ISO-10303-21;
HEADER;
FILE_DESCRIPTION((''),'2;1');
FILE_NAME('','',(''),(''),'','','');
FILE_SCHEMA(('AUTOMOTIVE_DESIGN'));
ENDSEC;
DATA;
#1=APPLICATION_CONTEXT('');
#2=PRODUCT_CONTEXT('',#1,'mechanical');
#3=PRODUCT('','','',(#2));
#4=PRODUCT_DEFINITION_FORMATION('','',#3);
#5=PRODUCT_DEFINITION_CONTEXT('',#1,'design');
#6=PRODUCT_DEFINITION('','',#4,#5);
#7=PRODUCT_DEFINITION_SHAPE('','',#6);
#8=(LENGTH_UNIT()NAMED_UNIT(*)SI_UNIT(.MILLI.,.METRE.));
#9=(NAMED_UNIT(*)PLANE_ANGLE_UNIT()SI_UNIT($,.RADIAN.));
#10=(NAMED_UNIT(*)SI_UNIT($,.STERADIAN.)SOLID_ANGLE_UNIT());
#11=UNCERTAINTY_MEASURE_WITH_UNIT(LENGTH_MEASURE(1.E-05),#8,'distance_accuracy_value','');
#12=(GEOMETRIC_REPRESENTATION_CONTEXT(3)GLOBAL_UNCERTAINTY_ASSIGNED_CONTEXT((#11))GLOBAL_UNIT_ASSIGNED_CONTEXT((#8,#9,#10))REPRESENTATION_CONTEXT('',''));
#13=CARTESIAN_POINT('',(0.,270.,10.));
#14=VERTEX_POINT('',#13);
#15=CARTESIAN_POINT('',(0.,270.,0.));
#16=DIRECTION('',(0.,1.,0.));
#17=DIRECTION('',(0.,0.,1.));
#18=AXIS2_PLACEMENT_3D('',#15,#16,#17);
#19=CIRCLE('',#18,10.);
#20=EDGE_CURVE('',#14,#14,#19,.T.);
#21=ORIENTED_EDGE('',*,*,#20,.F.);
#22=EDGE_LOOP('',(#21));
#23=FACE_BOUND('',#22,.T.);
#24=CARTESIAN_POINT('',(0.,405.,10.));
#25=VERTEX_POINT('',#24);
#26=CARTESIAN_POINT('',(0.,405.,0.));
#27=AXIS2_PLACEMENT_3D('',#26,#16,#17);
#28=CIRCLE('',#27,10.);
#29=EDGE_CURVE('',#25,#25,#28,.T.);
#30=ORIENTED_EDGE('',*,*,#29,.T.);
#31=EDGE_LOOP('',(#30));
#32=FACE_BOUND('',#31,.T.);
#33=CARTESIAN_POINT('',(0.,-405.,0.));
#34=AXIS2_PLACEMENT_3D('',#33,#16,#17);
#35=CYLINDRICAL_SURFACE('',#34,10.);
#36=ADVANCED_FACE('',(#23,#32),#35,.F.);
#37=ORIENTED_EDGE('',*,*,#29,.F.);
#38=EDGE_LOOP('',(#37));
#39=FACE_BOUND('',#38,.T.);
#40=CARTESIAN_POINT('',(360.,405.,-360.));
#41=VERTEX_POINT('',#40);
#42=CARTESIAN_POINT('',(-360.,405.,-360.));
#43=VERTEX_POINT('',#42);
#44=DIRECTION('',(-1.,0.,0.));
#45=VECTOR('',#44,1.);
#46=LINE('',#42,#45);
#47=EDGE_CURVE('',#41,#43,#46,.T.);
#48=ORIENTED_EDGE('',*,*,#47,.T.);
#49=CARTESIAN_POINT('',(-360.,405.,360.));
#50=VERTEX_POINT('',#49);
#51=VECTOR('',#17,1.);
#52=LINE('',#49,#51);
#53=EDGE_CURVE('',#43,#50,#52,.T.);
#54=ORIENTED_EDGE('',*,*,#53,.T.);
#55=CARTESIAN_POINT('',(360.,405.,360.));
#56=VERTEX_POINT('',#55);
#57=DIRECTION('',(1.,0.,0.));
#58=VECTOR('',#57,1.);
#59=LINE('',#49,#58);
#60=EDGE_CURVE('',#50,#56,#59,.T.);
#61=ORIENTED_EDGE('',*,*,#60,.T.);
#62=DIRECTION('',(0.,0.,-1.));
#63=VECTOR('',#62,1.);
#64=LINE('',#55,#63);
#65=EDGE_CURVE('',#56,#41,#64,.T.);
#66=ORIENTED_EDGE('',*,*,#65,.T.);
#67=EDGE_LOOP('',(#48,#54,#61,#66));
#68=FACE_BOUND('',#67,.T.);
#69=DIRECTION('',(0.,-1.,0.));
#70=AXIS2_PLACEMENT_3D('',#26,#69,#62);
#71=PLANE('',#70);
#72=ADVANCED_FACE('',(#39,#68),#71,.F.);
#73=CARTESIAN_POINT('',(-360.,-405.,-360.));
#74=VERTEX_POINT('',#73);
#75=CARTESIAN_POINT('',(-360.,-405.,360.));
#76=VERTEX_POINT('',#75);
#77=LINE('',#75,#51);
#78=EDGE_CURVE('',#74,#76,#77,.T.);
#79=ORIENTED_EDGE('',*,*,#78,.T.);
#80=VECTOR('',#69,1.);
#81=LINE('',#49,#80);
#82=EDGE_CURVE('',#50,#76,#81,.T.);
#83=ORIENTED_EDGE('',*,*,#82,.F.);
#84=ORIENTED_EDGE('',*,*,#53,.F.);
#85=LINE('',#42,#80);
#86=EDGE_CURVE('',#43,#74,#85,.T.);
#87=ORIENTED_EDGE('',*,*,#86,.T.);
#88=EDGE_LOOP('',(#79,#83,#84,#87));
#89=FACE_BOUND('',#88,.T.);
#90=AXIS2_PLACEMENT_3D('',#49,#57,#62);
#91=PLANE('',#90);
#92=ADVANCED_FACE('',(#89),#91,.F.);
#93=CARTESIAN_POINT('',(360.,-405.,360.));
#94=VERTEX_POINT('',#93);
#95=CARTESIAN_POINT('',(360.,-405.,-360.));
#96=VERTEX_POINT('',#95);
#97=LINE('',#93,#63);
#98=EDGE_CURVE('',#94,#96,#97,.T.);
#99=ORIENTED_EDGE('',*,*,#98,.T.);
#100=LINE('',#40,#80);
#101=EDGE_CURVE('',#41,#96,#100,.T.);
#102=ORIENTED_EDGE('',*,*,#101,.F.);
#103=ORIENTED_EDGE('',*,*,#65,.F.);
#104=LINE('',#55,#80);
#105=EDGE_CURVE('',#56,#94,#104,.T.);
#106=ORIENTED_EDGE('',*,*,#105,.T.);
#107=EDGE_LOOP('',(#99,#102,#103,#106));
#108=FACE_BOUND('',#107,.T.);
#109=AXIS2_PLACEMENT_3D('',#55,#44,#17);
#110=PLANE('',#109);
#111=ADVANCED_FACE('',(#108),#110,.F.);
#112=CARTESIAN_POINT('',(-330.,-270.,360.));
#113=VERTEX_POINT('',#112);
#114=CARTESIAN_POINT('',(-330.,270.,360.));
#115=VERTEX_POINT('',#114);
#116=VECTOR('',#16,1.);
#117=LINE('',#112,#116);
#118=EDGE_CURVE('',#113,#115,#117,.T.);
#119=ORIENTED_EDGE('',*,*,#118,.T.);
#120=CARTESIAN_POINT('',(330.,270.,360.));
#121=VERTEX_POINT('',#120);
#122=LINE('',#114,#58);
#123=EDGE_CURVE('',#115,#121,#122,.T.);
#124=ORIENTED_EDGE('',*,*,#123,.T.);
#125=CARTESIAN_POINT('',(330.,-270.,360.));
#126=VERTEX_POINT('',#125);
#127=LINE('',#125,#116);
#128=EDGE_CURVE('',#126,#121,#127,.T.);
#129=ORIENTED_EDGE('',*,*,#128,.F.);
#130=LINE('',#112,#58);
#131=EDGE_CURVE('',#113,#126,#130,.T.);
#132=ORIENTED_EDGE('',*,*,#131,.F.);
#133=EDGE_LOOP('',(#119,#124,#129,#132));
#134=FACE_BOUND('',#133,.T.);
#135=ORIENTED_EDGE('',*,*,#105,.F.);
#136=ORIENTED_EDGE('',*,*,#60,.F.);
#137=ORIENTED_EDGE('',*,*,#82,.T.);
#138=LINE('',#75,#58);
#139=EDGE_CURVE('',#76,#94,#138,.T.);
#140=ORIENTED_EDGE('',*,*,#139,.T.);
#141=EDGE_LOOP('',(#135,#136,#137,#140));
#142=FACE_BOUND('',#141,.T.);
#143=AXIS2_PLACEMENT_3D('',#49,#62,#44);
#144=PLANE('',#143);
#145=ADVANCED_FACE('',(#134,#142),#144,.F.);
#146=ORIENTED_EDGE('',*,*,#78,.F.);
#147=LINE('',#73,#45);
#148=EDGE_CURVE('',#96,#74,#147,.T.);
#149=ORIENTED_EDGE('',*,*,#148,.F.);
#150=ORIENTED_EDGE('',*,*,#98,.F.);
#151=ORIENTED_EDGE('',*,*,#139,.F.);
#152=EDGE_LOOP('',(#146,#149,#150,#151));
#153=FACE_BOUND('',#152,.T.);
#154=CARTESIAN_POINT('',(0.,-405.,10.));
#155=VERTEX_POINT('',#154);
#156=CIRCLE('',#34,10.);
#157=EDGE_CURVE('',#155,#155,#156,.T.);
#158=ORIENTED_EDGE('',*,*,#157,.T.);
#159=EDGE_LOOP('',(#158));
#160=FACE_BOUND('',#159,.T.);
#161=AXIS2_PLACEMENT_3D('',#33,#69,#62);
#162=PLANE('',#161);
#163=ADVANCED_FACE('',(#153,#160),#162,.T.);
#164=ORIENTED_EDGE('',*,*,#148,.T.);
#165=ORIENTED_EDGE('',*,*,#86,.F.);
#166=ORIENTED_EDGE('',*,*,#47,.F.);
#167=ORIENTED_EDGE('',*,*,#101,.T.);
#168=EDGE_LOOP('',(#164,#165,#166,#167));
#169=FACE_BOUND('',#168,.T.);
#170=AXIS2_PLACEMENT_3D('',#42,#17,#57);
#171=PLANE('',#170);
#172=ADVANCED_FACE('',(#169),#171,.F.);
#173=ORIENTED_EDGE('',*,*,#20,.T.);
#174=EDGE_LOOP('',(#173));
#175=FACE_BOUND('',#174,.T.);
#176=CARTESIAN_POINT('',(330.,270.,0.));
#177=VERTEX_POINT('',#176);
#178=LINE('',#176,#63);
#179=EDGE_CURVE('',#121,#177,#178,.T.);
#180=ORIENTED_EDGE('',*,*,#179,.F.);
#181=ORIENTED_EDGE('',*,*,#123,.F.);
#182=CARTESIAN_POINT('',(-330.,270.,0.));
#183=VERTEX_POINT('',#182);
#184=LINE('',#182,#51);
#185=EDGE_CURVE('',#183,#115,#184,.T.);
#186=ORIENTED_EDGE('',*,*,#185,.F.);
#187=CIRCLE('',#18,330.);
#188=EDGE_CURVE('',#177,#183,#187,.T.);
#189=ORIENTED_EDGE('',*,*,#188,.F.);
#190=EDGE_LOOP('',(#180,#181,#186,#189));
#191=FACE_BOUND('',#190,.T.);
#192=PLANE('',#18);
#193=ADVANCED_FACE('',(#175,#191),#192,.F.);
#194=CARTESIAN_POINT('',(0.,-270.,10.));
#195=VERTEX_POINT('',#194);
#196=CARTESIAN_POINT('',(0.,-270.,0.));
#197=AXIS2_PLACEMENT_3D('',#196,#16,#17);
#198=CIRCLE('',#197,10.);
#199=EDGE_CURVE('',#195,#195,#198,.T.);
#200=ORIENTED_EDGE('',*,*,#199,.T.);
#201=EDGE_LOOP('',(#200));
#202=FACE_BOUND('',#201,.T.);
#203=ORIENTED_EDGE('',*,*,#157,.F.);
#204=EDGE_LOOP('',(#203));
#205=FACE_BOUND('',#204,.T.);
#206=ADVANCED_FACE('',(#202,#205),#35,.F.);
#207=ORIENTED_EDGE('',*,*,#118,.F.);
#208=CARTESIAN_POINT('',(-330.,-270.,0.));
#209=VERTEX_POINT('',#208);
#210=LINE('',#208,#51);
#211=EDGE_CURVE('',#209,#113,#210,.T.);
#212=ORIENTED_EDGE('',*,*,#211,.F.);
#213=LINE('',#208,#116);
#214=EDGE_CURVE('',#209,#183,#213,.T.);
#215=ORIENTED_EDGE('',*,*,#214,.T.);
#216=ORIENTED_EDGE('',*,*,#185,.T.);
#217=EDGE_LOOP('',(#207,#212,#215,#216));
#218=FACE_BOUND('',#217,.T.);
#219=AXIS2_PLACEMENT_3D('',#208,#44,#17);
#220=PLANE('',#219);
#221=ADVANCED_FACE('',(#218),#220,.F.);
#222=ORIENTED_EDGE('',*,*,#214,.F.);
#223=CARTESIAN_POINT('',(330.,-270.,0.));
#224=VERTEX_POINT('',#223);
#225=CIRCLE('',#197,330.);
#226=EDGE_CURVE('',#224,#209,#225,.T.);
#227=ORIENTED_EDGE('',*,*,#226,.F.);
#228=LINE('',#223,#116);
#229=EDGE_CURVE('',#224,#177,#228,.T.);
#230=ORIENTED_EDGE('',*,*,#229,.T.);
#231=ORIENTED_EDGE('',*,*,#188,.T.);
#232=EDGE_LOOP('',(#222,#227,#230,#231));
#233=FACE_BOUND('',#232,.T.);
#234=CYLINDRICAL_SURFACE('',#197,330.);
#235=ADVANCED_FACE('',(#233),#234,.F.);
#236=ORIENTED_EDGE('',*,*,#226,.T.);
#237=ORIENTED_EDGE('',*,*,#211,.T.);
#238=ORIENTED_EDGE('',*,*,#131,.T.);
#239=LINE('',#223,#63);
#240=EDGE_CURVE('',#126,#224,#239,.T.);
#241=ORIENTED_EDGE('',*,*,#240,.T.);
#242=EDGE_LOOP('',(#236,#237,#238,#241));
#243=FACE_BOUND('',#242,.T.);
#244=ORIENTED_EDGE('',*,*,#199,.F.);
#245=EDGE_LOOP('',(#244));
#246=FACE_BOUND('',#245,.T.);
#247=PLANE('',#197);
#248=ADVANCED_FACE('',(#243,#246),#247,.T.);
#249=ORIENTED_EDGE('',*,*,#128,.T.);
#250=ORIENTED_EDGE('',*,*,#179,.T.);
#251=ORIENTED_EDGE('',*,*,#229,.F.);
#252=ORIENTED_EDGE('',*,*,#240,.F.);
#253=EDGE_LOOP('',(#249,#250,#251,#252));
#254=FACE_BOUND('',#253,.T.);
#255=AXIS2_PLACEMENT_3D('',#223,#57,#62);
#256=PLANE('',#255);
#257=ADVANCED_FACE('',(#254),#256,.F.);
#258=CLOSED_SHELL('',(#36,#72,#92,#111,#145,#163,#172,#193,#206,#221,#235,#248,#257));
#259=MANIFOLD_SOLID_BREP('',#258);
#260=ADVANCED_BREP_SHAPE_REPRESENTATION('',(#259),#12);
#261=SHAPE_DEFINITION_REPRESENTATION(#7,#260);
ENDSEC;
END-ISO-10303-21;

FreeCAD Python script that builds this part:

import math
import FreeCAD as App
import Part
import Sketcher

V = App.Vector
Q = App.Units.Quantity

doc = App.newDocument("Part")
params = doc.addObject("Spreadsheet::Sheet", "Params")
for row, (alias, value) in enumerate([
    ("sketch1_width", "720 mm"),
    ("pad1_length", "810 mm"),
    ("sketch2_radius", "330 mm"),
    ("sketch2_height", "360 mm"),
    ("pocket1_length", "540 mm"),
    ("sketch3_diameter", "20 mm"),
], start=1):
    params.set(f"A{row}", alias)
    params.set(f"B{row}", "=" + value)
    params.setAlias(f"B{row}", alias)

body = doc.addObject("PartDesign::Body", "Body")

# Sketch on XZ plane
sketch1 = doc.addObject("Sketcher::SketchObject", "Sketch")
body.addObject(sketch1)
sketch1.AttachmentSupport = (doc.XZ_Plane, [""])
sketch1.MapMode = "FlatFace"
sketch1.addGeometry(Part.LineSegment(V(-360, -360, 0), V(-360, 360, 0)), False)
sketch1.addGeometry(Part.LineSegment(V(-360, 360, 0), V(360, 360, 0)), False)
sketch1.addGeometry(Part.LineSegment(V(360, 360, 0), V(360, -360, 0)), False)
sketch1.addGeometry(Part.LineSegment(V(360, -360, 0), V(-360, -360, 0)), False)
sketch1.addConstraint(Sketcher.Constraint("Coincident", 0, 2, 1, 1))
sketch1.addConstraint(Sketcher.Constraint("Coincident", 1, 2, 2, 1))
sketch1.addConstraint(Sketcher.Constraint("Coincident", 2, 2, 3, 1))
sketch1.addConstraint(Sketcher.Constraint("Coincident", 3, 2, 0, 1))
sketch1.addConstraint(Sketcher.Constraint("Vertical", 0))
sketch1.addConstraint(Sketcher.Constraint("Horizontal", 1))
sketch1.addConstraint(Sketcher.Constraint("Vertical", 2))
sketch1.addConstraint(Sketcher.Constraint("Horizontal", 3))
sketch1.addConstraint(Sketcher.Constraint("Symmetric", 0, 2, 2, 2, -1, 1))
sketch1.addConstraint(Sketcher.Constraint("Equal", 3, 0))
sketch1.addConstraint(Sketcher.Constraint("DistanceX", 1, 1, 1, 2, Q("720 mm")))
sketch1.setExpression("Constraints[10]", "Params.sketch1_width")
pad1 = doc.addObject("PartDesign::Pad", "Pad")
body.addObject(pad1)
pad1.Profile = sketch1
pad1.setExpression("Length", "Params.pad1_length")
pad1.Midplane = True

# Sketch on XZ plane
sketch2 = doc.addObject("Sketcher::SketchObject", "Sketch001")
body.addObject(sketch2)
sketch2.AttachmentSupport = (doc.XZ_Plane, [""])
sketch2.MapMode = "FlatFace"
sketch2.addGeometry(Part.LineSegment(V(330, 360, 0), V(330, 0, 0)), False)
sketch2.addGeometry(Part.ArcOfCircle(Part.Circle(V(0, 0, 0), V(0, 0, 1), 330), math.radians(180), math.radians(360)), False)
sketch2.addGeometry(Part.LineSegment(V(-330, 0, 0), V(-330, 360, 0)), False)
sketch2.addGeometry(Part.LineSegment(V(-330, 360, 0), V(330, 360, 0)), False)
sketch2.addConstraint(Sketcher.Constraint("Tangent", 0, 2, 1, 2))
sketch2.addConstraint(Sketcher.Constraint("Tangent", 1, 1, 2, 1))
sketch2.addConstraint(Sketcher.Constraint("Coincident", 2, 2, 3, 1))
sketch2.addConstraint(Sketcher.Constraint("Coincident", 3, 2, 0, 1))
sketch2.addConstraint(Sketcher.Constraint("Vertical", 0))
sketch2.addConstraint(Sketcher.Constraint("Vertical", 2))
sketch2.addConstraint(Sketcher.Constraint("Horizontal", 3))
sketch2.addConstraint(Sketcher.Constraint("Coincident", 1, 3, -1, 1))
sketch2.addConstraint(Sketcher.Constraint("Radius", 1, Q("330 mm")))
sketch2.addConstraint(Sketcher.Constraint("DistanceY", 0, 2, 0, 1, Q("360 mm")))
sketch2.setExpression("Constraints[8]", "Params.sketch2_radius")
sketch2.setExpression("Constraints[9]", "Params.sketch2_height")
pocket1 = doc.addObject("PartDesign::Pocket", "Pocket")
body.addObject(pocket1)
pocket1.Profile = sketch2
pocket1.setExpression("Length", "Params.pocket1_length")
pocket1.Midplane = True

# Sketch on XZ plane
sketch3 = doc.addObject("Sketcher::SketchObject", "Sketch002")
body.addObject(sketch3)
sketch3.AttachmentSupport = (doc.XZ_Plane, [""])
sketch3.MapMode = "FlatFace"
sketch3.addGeometry(Part.Circle(V(0, 0, 0), V(0, 0, 1), 10), False)
sketch3.addConstraint(Sketcher.Constraint("Coincident", 0, 3, -1, 1))
sketch3.addConstraint(Sketcher.Constraint("Diameter", 0, Q("20 mm")))
sketch3.setExpression("Constraints[1]", "Params.sketch3_diameter")
pocket2 = doc.addObject("PartDesign::Pocket", "Pocket001")
body.addObject(pocket2)
pocket2.Profile = sketch3
pocket2.Type = "ThroughAll"
pocket2.Midplane = True

doc.recompute()
